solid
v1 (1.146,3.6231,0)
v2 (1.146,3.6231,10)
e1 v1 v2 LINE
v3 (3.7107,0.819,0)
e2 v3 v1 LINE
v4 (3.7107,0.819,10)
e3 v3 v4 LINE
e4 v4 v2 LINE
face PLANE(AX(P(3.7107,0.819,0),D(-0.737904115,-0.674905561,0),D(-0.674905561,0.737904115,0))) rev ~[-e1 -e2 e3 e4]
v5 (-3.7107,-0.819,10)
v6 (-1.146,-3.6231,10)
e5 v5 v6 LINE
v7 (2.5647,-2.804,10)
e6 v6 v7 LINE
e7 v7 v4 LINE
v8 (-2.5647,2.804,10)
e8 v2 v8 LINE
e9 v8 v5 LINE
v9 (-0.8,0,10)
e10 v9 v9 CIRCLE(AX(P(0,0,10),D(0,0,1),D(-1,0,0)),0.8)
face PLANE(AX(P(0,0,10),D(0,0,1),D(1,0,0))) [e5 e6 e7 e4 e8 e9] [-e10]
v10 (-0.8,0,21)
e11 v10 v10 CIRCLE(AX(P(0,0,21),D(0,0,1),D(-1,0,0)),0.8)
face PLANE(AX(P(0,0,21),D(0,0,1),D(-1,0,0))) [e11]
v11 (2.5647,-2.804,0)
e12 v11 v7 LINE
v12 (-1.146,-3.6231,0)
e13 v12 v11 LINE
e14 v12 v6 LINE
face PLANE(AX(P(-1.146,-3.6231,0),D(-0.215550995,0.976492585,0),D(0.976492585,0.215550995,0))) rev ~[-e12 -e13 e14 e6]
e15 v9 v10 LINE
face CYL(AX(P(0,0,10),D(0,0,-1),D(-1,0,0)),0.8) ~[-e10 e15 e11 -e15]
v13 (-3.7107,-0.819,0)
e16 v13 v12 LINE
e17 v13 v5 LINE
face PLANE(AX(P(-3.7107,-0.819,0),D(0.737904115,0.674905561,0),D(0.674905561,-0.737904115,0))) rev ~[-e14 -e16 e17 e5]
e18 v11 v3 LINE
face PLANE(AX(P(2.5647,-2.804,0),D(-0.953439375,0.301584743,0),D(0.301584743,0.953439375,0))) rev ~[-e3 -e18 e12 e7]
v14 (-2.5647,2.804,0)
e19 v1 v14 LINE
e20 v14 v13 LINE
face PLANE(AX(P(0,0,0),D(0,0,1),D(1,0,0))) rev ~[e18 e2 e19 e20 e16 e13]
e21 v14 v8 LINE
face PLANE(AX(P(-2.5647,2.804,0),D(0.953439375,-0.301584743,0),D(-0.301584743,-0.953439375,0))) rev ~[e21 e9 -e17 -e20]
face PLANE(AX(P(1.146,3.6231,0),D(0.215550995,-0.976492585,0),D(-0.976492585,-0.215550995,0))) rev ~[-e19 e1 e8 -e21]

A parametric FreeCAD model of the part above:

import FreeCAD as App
import Part
import Sketcher
from FreeCAD import Vector


def add_polygon(sketch, points):
    """Adds a closed chain of lines whose ends are joined by coincident constraints."""
    first, n = sketch.GeometryCount, len(points)
    for a, b in zip(points, points[1:] + points[:1]):
        sketch.addGeometry(Part.LineSegment(App.Vector(*a, 0), App.Vector(*b, 0)), False)
    for i in range(n):
        sketch.addConstraint(Sketcher.Constraint("Coincident", first + i, 2, first + (i + 1) % n, 1))

doc = App.newDocument("Part")
params = doc.addObject("Spreadsheet::Sheet", "Params")
for row, (alias, value) in enumerate([
    ("sketch1_length", "3.8 mm"),
    ("pad1_length", "10 mm"),
    ("sketch2_diameter", "1.6 mm"),
    ("pad2_length", "11 mm"),
], start=1):
    params.set(f"A{row}", alias)
    params.set(f"B{row}", "=" + value)
    params.setAlias(f"B{row}", alias)

body = doc.addObject("PartDesign::Body", "Body")

# Sketch on XY plane
sketch1 = body.newObject("Sketcher::SketchObject", "Sketch")
sketch1.AttachmentSupport = (doc.getObject("XY_Plane"), [""])
sketch1.MapMode = "FlatFace"
add_polygon(sketch1, [(-1.146, -3.6231), (2.5647, -2.804), (3.7107, 0.819), (1.146, 3.6231), (-2.5647, 2.804), (-3.7107, -0.819)])  # lines 0-5
sketch1.addConstraint(Sketcher.Constraint("Symmetric", 0, 2, 3, 2, -1, 1))
sketch1.addConstraint(Sketcher.Constraint("Symmetric", 1, 2, 4, 2, -1, 1))
sketch1.addConstraint(Sketcher.Constraint("Symmetric", 2, 2, 5, 2, -1, 1))
sketch1.addConstraint(Sketcher.Constraint("Equal", 0, 1))
sketch1.addConstraint(Sketcher.Constraint("Equal", 1, 2))
sketch1.addConstraint(Sketcher.Constraint("Distance", 0, 3.8))
sketch1.addConstraint(Sketcher.Constraint("DistanceY", 0, 2, -1, 1, 2.804))
sketch1.addConstraint(Sketcher.Constraint("DistanceY", -1, 1, 1, 2, 0.819))
sketch1.addConstraint(Sketcher.Constraint("DistanceX", -1, 1, 2, 2, 1.146))
sketch1.setExpression("Constraints[11]", "Params.sketch1_length")
pad1 = body.newObject("PartDesign::Pad", "Pad")
pad1.Profile = sketch1
pad1.setExpression("Length", "Params.pad1_length")

# Sketch on XY plane
sketch2 = body.newObject("Sketcher::SketchObject", "Sketch001")
sketch2.AttachmentSupport = (doc.getObject("XY_Plane"), [""])
sketch2.MapMode = "FlatFace"
sketch2.AttachmentOffset = App.Placement(Vector(0, 0, 10), App.Rotation())
sketch2.addGeometry(Part.Circle(Vector(0, 0, 0), Vector(0, 0, 1), 0.8), False)
sketch2.addConstraint(Sketcher.Constraint("Coincident", 0, 3, -1, 1))
sketch2.addConstraint(Sketcher.Constraint("Diameter", 0, 1.6))
sketch2.setExpression("Constraints[1]", "Params.sketch2_diameter")
pad2 = body.newObject("PartDesign::Pad", "Pad001")
pad2.Profile = sketch2
pad2.setExpression("Length", "Params.pad2_length")

doc.recompute()
